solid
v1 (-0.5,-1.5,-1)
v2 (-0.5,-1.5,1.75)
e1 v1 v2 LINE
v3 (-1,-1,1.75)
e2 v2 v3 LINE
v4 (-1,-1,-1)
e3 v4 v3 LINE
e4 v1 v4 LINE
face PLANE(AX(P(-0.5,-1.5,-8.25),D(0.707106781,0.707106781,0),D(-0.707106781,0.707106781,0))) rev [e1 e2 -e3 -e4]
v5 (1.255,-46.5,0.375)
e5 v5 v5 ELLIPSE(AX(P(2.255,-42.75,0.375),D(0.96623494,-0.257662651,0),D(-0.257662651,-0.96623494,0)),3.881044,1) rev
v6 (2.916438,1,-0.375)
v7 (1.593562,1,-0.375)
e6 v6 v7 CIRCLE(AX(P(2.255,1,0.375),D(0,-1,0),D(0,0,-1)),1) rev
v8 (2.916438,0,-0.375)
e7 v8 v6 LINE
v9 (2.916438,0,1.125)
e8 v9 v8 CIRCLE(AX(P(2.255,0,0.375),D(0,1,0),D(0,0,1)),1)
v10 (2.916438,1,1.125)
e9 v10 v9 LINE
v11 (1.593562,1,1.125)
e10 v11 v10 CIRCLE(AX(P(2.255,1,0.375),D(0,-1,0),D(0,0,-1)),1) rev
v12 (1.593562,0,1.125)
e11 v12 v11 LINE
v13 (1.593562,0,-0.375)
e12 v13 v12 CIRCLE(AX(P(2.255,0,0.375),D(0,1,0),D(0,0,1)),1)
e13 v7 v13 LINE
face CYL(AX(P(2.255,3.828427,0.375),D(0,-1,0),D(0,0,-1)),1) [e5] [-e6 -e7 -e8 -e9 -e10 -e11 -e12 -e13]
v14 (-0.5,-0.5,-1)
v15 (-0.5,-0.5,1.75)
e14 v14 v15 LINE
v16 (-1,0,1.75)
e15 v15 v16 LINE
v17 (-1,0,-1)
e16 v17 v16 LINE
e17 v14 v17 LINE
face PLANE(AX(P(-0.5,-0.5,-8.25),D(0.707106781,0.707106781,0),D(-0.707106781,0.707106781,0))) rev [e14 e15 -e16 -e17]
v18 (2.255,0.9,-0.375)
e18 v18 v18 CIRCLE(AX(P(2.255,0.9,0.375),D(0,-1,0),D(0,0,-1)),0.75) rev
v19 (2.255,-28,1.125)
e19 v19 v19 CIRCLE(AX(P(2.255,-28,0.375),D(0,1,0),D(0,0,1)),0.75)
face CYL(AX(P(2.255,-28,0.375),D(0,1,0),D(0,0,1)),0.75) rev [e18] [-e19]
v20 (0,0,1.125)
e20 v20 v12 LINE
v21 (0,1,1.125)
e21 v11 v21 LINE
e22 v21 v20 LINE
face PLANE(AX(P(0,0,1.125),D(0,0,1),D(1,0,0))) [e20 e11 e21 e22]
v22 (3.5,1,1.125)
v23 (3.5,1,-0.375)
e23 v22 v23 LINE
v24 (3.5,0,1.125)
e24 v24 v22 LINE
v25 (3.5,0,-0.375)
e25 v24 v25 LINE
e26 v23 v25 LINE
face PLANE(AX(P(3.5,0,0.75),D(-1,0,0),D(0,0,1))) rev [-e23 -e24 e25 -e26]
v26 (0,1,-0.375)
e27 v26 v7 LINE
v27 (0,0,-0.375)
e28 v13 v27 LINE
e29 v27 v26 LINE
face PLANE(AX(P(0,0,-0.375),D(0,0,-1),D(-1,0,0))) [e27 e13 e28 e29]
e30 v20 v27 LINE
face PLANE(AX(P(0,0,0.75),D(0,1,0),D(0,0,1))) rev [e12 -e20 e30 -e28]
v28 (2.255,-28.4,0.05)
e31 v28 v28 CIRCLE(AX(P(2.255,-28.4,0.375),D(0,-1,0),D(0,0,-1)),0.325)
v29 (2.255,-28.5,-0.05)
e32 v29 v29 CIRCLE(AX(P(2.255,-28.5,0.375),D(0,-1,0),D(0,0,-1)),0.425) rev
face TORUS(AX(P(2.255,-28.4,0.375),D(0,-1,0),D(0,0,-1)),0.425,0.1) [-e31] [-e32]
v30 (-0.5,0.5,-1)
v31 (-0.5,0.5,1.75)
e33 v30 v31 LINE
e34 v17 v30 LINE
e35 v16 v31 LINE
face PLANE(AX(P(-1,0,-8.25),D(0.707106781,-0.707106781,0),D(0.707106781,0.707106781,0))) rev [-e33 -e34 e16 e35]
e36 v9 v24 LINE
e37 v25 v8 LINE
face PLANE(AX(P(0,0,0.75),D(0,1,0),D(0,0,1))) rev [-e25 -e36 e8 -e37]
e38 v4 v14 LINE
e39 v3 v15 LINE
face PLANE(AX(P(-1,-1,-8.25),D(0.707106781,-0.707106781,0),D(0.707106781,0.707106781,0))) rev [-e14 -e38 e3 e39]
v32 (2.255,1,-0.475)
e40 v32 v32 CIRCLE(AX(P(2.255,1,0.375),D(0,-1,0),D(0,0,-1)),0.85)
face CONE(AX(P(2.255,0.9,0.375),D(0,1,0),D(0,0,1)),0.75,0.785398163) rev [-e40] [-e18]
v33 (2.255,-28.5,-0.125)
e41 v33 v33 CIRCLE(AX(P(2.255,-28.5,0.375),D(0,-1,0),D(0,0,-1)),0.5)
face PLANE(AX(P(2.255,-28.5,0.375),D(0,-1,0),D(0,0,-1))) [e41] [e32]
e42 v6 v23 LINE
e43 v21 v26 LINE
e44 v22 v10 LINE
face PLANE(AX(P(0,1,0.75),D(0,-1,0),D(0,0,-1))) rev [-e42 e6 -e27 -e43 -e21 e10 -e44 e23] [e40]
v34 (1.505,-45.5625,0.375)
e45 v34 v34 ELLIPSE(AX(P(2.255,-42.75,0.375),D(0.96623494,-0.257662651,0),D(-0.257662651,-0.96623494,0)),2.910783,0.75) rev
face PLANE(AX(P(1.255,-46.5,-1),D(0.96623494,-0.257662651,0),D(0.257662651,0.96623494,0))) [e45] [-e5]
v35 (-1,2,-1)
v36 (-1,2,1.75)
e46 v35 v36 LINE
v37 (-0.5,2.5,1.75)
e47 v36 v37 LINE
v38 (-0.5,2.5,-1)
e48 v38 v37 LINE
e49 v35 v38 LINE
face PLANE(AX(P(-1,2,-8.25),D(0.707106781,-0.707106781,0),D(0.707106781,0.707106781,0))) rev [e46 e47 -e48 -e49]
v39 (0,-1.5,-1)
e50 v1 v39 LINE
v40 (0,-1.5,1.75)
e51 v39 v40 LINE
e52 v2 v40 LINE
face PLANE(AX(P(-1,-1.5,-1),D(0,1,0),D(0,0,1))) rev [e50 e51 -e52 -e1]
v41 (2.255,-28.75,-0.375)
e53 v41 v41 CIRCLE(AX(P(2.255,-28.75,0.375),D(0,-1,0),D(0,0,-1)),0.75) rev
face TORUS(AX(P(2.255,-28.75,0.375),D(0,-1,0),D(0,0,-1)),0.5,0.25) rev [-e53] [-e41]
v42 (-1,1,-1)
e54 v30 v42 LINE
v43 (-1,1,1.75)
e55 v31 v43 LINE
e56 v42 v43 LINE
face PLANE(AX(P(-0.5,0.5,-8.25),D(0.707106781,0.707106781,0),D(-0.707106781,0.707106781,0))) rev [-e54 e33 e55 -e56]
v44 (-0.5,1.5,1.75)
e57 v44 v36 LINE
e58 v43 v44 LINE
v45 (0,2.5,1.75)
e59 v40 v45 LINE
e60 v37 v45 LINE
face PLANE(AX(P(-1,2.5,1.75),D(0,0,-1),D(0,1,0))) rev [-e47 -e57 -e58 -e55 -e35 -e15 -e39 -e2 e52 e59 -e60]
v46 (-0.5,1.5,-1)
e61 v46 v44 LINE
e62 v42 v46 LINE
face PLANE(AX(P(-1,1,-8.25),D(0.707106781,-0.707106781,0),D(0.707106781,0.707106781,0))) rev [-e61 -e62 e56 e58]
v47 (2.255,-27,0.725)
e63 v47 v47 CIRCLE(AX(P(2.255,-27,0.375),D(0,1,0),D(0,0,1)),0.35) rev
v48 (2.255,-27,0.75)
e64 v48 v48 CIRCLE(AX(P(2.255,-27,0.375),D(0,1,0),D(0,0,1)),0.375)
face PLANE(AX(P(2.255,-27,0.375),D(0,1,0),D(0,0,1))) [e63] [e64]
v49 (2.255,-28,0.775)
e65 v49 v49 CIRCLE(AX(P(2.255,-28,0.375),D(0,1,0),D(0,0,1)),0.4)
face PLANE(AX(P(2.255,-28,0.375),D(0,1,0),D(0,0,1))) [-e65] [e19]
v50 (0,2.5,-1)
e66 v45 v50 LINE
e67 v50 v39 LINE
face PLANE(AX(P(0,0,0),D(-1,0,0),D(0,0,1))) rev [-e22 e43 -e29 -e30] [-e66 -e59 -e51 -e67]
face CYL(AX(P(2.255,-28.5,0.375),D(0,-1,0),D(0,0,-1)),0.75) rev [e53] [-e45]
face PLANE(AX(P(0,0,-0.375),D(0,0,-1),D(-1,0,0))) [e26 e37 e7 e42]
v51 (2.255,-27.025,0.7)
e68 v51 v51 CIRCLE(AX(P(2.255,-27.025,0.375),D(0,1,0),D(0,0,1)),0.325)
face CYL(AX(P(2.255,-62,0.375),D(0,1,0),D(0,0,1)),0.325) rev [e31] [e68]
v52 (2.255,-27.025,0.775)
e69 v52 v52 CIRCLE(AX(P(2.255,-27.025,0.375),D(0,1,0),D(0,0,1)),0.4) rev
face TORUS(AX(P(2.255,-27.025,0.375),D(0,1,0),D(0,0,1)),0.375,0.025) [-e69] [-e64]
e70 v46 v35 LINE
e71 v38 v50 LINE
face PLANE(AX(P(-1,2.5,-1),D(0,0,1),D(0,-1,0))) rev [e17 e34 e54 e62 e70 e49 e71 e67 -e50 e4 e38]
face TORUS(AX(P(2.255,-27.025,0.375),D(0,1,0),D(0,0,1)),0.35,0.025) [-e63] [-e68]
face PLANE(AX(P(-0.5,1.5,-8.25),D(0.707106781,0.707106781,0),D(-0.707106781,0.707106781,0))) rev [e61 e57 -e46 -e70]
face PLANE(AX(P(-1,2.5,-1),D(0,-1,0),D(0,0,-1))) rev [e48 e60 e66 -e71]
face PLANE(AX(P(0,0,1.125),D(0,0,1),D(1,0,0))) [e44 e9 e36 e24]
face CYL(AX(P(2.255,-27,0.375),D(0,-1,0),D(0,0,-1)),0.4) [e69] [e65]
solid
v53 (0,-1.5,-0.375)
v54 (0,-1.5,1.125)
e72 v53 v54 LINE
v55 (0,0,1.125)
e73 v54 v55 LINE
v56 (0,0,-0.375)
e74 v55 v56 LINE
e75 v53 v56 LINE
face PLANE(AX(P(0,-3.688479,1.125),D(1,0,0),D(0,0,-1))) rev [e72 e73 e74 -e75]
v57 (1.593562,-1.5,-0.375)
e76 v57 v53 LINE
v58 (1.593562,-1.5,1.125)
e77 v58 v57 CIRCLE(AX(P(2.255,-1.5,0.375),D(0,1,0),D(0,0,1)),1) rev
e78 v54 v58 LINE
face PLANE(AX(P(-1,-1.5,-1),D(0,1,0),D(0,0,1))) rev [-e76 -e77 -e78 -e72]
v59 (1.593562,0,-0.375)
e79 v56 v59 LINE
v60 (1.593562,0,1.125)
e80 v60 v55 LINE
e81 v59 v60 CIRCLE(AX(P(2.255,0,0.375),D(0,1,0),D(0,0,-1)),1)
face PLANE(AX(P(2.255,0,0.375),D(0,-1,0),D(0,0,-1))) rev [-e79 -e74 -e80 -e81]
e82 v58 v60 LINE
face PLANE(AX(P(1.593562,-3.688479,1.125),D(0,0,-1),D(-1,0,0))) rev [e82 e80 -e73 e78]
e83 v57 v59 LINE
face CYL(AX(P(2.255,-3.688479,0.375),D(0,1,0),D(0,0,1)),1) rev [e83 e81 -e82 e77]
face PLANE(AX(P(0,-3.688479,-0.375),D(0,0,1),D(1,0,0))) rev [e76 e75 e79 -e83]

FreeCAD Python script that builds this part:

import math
import FreeCAD as App
import Part
import Sketcher

V = App.Vector


def edges_at(feature, points):
    """Names of the edges that pass closest to the given points."""
    edges = feature.Shape.Edges
    near = lambda p: min(range(len(edges)), key=lambda i: edges[i].distToShape(Part.Vertex(*p))[0])
    return sorted({f"Edge{near(p) + 1}" for p in points})

doc = App.newDocument("Part")
body = doc.addObject("PartDesign::Body", "Body")

# Sketch on XY plane
sketch1 = body.newObject("Sketcher::SketchObject", "Sketch")
sketch1.AttachmentSupport = (doc.getObject("XY_Plane"), [""])
sketch1.MapMode = "FlatFace"
sketch1.addGeometry(Part.LineSegment(V(0, 1, 0), V(0, 0, 0)), False)
sketch1.addGeometry(Part.LineSegment(V(0, 0, 0), V(3.5, 0, 0)), False)
sketch1.addGeometry(Part.LineSegment(V(3.5, 0, 0), V(3.5, 1, 0)), False)
sketch1.addGeometry(Part.LineSegment(V(3.5, 1, 0), V(0, 1, 0)), False)
sketch1.addConstraint(Sketcher.Constraint("Coincident", 0, 2, 1, 1))
sketch1.addConstraint(Sketcher.Constraint("Coincident", 1, 2, 2, 1))
sketch1.addConstraint(Sketcher.Constraint("Coincident", 2, 2, 3, 1))
sketch1.addConstraint(Sketcher.Constraint("Coincident", 3, 2, 0, 1))
sketch1.addConstraint(Sketcher.Constraint("Vertical", 0))
sketch1.addConstraint(Sketcher.Constraint("Horizontal", 1))
sketch1.addConstraint(Sketcher.Constraint("Vertical", 2))
sketch1.addConstraint(Sketcher.Constraint("Horizontal", 3))
sketch1.addConstraint(Sketcher.Constraint("Coincident", 0, 2, -1, 1))
sketch1.addConstraint(Sketcher.Constraint("DistanceY", 0, 2, 0, 1, 1.0))
sketch1.addConstraint(Sketcher.Constraint("DistanceX", 1, 1, 1, 2, 3.5))
pad1 = body.newObject("PartDesign::Pad", "Pad")
pad1.Profile = sketch1
pad1.Length = 0.75

# Sketch on XZ plane
sketch2 = body.newObject("Sketcher::SketchObject", "Sketch001")
sketch2.AttachmentSupport = (doc.getObject("XZ_Plane"), [""])
sketch2.MapMode = "FlatFace"
sketch2.addGeometry(Part.Circle(V(2.255, 0.375, 0), V(0, 0, 1), 1), False)
sketch2.addConstraint(Sketcher.Constraint("Diameter", 0, 2.0))
sketch2.addConstraint(Sketcher.Constraint("DistanceX", -1, 1, 0, 3, 2.255))
sketch2.addConstraint(Sketcher.Constraint("DistanceY", -1, 1, 0, 3, 0.375))
pad2 = body.newObject("PartDesign::Pad", "Pad001")
pad2.Profile = sketch2
pad2.Type = "TwoLengths"
pad2.Length = 46.5
pad2.Length2 = 1

# Sketch on XZ plane
sketch3 = body.newObject("Sketcher::SketchObject", "Sketch002")
sketch3.AttachmentSupport = (doc.getObject("XZ_Plane"), [""])
sketch3.MapMode = "FlatFace"
sketch3.AttachmentOffset = App.Placement(V(0, 0, 46.5), App.Rotation())
sketch3.addGeometry(Part.Circle(V(2.255, 0.375, 0), V(0, 0, 1), 0.75), False)
sketch3.addConstraint(Sketcher.Constraint("Diameter", 0, 1.5))
sketch3.addConstraint(Sketcher.Constraint("DistanceX", -1, 1, 0, 3, 2.255))
sketch3.addConstraint(Sketcher.Constraint("DistanceY", -1, 1, 0, 3, 0.375))
pocket1 = body.newObject("PartDesign::Pocket", "Pocket")
pocket1.Profile = sketch3
pocket1.Length = 18

# Sketch on YZ plane
sketch4 = body.newObject("Sketcher::SketchObject", "Sketch003")
sketch4.AttachmentSupport = (doc.getObject("YZ_Plane"), [""])
sketch4.MapMode = "FlatFace"
sketch4.addGeometry(Part.LineSegment(V(2.5, -1, 0), V(-1.5, -1, 0)), False)
sketch4.addGeometry(Part.LineSegment(V(-1.5, -1, 0), V(-1.5, 1.75, 0)), False)
sketch4.addGeometry(Part.LineSegment(V(-1.5, 1.75, 0), V(2.5, 1.75, 0)), False)
sketch4.addGeometry(Part.LineSegment(V(2.5, 1.75, 0), V(2.5, -1, 0)), False)
sketch4.addConstraint(Sketcher.Constraint("Coincident", 0, 2, 1, 1))
sketch4.addConstraint(Sketcher.Constraint("Coincident", 1, 2, 2, 1))
sketch4.addConstraint(Sketcher.Constraint("Coincident", 2, 2, 3, 1))
sketch4.addConstraint(Sketcher.Constraint("Coincident", 3, 2, 0, 1))
sketch4.addConstraint(Sketcher.Constraint("Horizontal", 0))
sketch4.addConstraint(Sketcher.Constraint("Vertical", 1))
sketch4.addConstraint(Sketcher.Constraint("Horizontal", 2))
sketch4.addConstraint(Sketcher.Constraint("Vertical", 3))
sketch4.addConstraint(Sketcher.Constraint("DistanceX", 0, 2, 0, 1, 4.0))
sketch4.addConstraint(Sketcher.Constraint("DistanceY", 0, 2, -1, 1, 1.0))
sketch4.addConstraint(Sketcher.Constraint("DistanceY", 1, 1, 1, 2, 2.75))
sketch4.addConstraint(Sketcher.Constraint("DistanceX", 0, 2, -1, 1, 1.5))
pad3 = body.newObject("PartDesign::Pad", "Pad002")
pad3.Profile = sketch4
pad3.Length = 1
pad3.Reversed = True

# Sketch on XY plane
sketch5 = body.newObject("Sketcher::SketchObject", "Sketch004")
sketch5.AttachmentSupport = (doc.getObject("XY_Plane"), [""])
sketch5.MapMode = "FlatFace"
sketch5.AttachmentOffset = App.Placement(V(0, 0, 1.75), App.Rotation())
sketch5.addGeometry(Part.LineSegment(V(-0.5, 2.5, 0), V(-1.357588, 2.5, 0)), False)
sketch5.addGeometry(Part.LineSegment(V(-1.357588, 2.5, 0), V(-1.357588, -1.5, 0)), False)
sketch5.addGeometry(Part.LineSegment(V(-1.357588, -1.5, 0), V(-0.5, -1.5, 0)), False)
sketch5.addGeometry(Part.LineSegment(V(-0.5, -1.5, 0), V(-1, -1, 0)), False)
sketch5.addGeometry(Part.LineSegment(V(-1, -1, 0), V(-0.5, -0.5, 0)), False)
sketch5.addGeometry(Part.LineSegment(V(-0.5, -0.5, 0), V(-1, 0, 0)), False)
sketch5.addGeometry(Part.LineSegment(V(-1, 0, 0), V(-0.5, 0.5, 0)), False)
sketch5.addGeometry(Part.LineSegment(V(-0.5, 0.5, 0), V(-1, 1, 0)), False)
sketch5.addGeometry(Part.LineSegment(V(-1, 1, 0), V(-0.5, 1.5, 0)), False)
sketch5.addGeometry(Part.LineSegment(V(-0.5, 1.5, 0), V(-1, 2, 0)), False)
sketch5.addGeometry(Part.LineSegment(V(-1, 2, 0), V(-0.5, 2.5, 0)), False)
sketch5.addConstraint(Sketcher.Constraint("Coincident", 0, 2, 1, 1))
sketch5.addConstraint(Sketcher.Constraint("Coincident", 1, 2, 2, 1))
sketch5.addConstraint(Sketcher.Constraint("Coincident", 2, 2, 3, 1))
sketch5.addConstraint(Sketcher.Constraint("Coincident", 3, 2, 4, 1))
sketch5.addConstraint(Sketcher.Constraint("Coincident", 4, 2, 5, 1))
sketch5.addConstraint(Sketcher.Constraint("Coincident", 5, 2, 6, 1))
sketch5.addConstraint(Sketcher.Constraint("Coincident", 6, 2, 7, 1))
sketch5.addConstraint(Sketcher.Constraint("Coincident", 7, 2, 8, 1))
sketch5.addConstraint(Sketcher.Constraint("Coincident", 8, 2, 9, 1))
sketch5.addConstraint(Sketcher.Constraint("Coincident", 9, 2, 10, 1))
sketch5.addConstraint(Sketcher.Constraint("Coincident", 10, 2, 0, 1))
sketch5.addConstraint(Sketcher.Constraint("Horizontal", 0))
sketch5.addConstraint(Sketcher.Constraint("Vertical", 1))
sketch5.addConstraint(Sketcher.Constraint("Horizontal", 2))
sketch5.addConstraint(Sketcher.Constraint("Symmetric", 4, 2, 6, 2, -1))
sketch5.addConstraint(Sketcher.Constraint("Symmetric", 3, 2, 7, 2, -1))
sketch5.addConstraint(Sketcher.Constraint("Symmetric", 2, 2, 8, 2, -1))
sketch5.addConstraint(Sketcher.Constraint("PointOnObject", 5, 2, -1))
sketch5.addConstraint(Sketcher.Constraint("Perpendicular", 3, 4))
sketch5.addConstraint(Sketcher.Constraint("Perpendicular", 4, 5))
sketch5.addConstraint(Sketcher.Constraint("Perpendicular", 5, 6))
sketch5.addConstraint(Sketcher.Constraint("Perpendicular", 8, 9))
sketch5.addConstraint(Sketcher.Constraint("Perpendicular", 9, 10))
sketch5.addConstraint(Sketcher.Constraint("Vertical", 2, 2, 4, 2))
sketch5.addConstraint(Sketcher.Constraint("Vertical", 3, 2, 5, 2))
sketch5.addConstraint(Sketcher.Constraint("Vertical", 7, 2, 9, 2))
sketch5.addConstraint(Sketcher.Constraint("Vertical", 8, 2, 10, 2))
sketch5.addConstraint(Sketcher.Constraint("DistanceY", 1, 2, 1, 1, 4.0))
sketch5.addConstraint(Sketcher.Constraint("DistanceX", 3, 2, -1, 1, 1.0))
sketch5.addConstraint(Sketcher.Constraint("DistanceX", 0, 2, 0, 1, 0.857588))
pocket2 = body.newObject("PartDesign::Pocket", "Pocket001")
pocket2.Profile = sketch5
pocket2.Length = 10

# Sketch on XY plane
sketch6 = body.newObject("Sketcher::SketchObject", "Sketch005")
sketch6.AttachmentSupport = (doc.getObject("XY_Plane"), [""])
sketch6.MapMode = "FlatFace"
sketch6.addGeometry(Part.LineSegment(V(3.255, -39, 0), V(1.255, -46.5, 0)), False)
sketch6.addGeometry(Part.LineSegment(V(1.255, -46.5, 0), V(3.255, -46.5, 0)), False)
sketch6.addGeometry(Part.LineSegment(V(3.255, -46.5, 0), V(3.255, -39, 0)), False)
sketch6.addConstraint(Sketcher.Constraint("Coincident", 0, 2, 1, 1))
sketch6.addConstraint(Sketcher.Constraint("Coincident", 1, 2, 2, 1))
sketch6.addConstraint(Sketcher.Constraint("Coincident", 2, 2, 0, 1))
sketch6.addConstraint(Sketcher.Constraint("Horizontal", 1))
sketch6.addConstraint(Sketcher.Constraint("Vertical", 2))
sketch6.addConstraint(Sketcher.Constraint("DistanceX", 1, 1, 1, 2, 2.0))
sketch6.addConstraint(Sketcher.Constraint("DistanceY", 2, 1, 2, 2, 7.5))
sketch6.addConstraint(Sketcher.Constraint("DistanceY", 2, 2, -1, 1, 39.0))
sketch6.addConstraint(Sketcher.Constraint("DistanceX", -1, 1, 0, 2, 1.255))
pocket3 = body.newObject("PartDesign::Pocket", "Pocket002")
pocket3.Profile = sketch6
pocket3.Type = "ThroughAll"
pocket3.Midplane = True

# Sketch on XZ plane
sketch7 = body.newObject("Sketcher::SketchObject", "Sketch006")
sketch7.AttachmentSupport = (doc.getObject("XZ_Plane"), [""])
sketch7.MapMode = "FlatFace"
sketch7.AttachmentOffset = App.Placement(V(0, 0, -1), App.Rotation())
sketch7.addGeometry(Part.Circle(V(2.255, 0.375, 0), V(0, 0, 1), 0.75), False)
sketch7.addConstraint(Sketcher.Constraint("Diameter", 0, 1.5))
sketch7.addConstraint(Sketcher.Constraint("DistanceX", -1, 1, 0, 3, 2.255))
sketch7.addConstraint(Sketcher.Constraint("DistanceY", -1, 1, 0, 3, 0.375))
pocket4 = body.newObject("PartDesign::Pocket", "Pocket003")
pocket4.Profile = sketch7
pocket4.Length = 29
pocket4.Reversed = True

# Sketch on XZ plane
sketch8 = body.newObject("Sketcher::SketchObject", "Sketch007")
sketch8.AttachmentSupport = (doc.getObject("XZ_Plane"), [""])
sketch8.MapMode = "FlatFace"
sketch8.AttachmentOffset = App.Placement(V(0, 0, 28), App.Rotation())
sketch8.addGeometry(Part.Circle(V(2.255, 0.375, 0), V(0, 0, 1), 0.4), False)
sketch8.addConstraint(Sketcher.Constraint("Diameter", 0, 0.8))
sketch8.addConstraint(Sketcher.Constraint("DistanceX", -1, 1, 0, 3, 2.255))
sketch8.addConstraint(Sketcher.Constraint("DistanceY", -1, 1, 0, 3, 0.375))
pad4 = body.newObject("PartDesign::Pad", "Pad003")
pad4.Profile = sketch8
pad4.Length = 1
pad4.Reversed = True

# Sketch on XZ plane
sketch9 = body.newObject("Sketcher::SketchObject", "Sketch008")
sketch9.AttachmentSupport = (doc.getObject("XZ_Plane"), [""])
sketch9.MapMode = "FlatFace"
sketch9.AttachmentOffset = App.Placement(V(0, 0, 27), App.Rotation())
sketch9.addGeometry(Part.Circle(V(2.255, 0.375, 0), V(0, 0, 1), 0.325), False)
sketch9.addConstraint(Sketcher.Constraint("Diameter", 0, 0.65))
sketch9.addConstraint(Sketcher.Constraint("DistanceX", -1, 1, 0, 3, 2.255))
sketch9.addConstraint(Sketcher.Constraint("DistanceY", -1, 1, 0, 3, 0.375))
pocket5 = body.newObject("PartDesign::Pocket", "Pocket004")
pocket5.Profile = sketch9
pocket5.Length = 35
pocket5.Reversed = True
doc.recompute()

fillet = body.newObject("PartDesign::Fillet", "Fillet")
fillet.Base = (pocket5, edges_at(pocket5, [(1.93, -27, 0.375)]))
fillet.Radius = 0.025
doc.recompute()

fillet2 = body.newObject("PartDesign::Fillet", "Fillet001")
fillet2.Base = (fillet, edges_at(fillet, [(1.855, -27, 0.375)]))
fillet2.Radius = 0.025
doc.recompute()

fillet3 = body.newObject("PartDesign::Fillet", "Fillet002")
fillet3.Base = (fillet2, edges_at(fillet2, [(1.505, -28.5, 0.375)]))
fillet3.Radius = 0.25
doc.recompute()

fillet4 = body.newObject("PartDesign::Fillet", "Fillet003")
fillet4.Base = (fillet3, edges_at(fillet3, [(1.93, -28.5, 0.375)]))
fillet4.Radius = 0.1

# Sketch on XY plane
sketch10 = body.newObject("Sketcher::SketchObject", "Sketch009")
sketch10.AttachmentSupport = (doc.getObject("XY_Plane"), [""])
sketch10.MapMode = "FlatFace"
sketch10.addGeometry(Part.LineSegment(V(3.5, 1, 0), V(3.5, 0, 0)), False)
sketch10.addGeometry(Part.LineSegment(V(3.5, 0, 0), V(3.182025, 0, 0)), False)
sketch10.addGeometry(Part.LineSegment(V(3.182025, 0, 0), V(3.182025, 1, 0)), False)
sketch10.addGeometry(Part.LineSegment(V(3.182025, 1, 0), V(3.5, 1, 0)), False)
sketch10.addConstraint(Sketcher.Constraint("Coincident", 0, 2, 1, 1))
sketch10.addConstraint(Sketcher.Constraint("Coincident", 1, 2, 2, 1))
sketch10.addConstraint(Sketcher.Constraint("Coincident", 2, 2, 3, 1))
sketch10.addConstraint(Sketcher.Constraint("Coincident", 3, 2, 0, 1))
sketch10.addConstraint(Sketcher.Constraint("Vertical", 0))
sketch10.addConstraint(Sketcher.Constraint("Horizontal", 1))
sketch10.addConstraint(Sketcher.Constraint("Vertical", 2))
sketch10.addConstraint(Sketcher.Constraint("Horizontal", 3))
sketch10.addConstraint(Sketcher.Constraint("PointOnObject", 0, 2, -1))
sketch10.addConstraint(Sketcher.Constraint("DistanceY", 0, 2, 0, 1, 1.0))
sketch10.addConstraint(Sketcher.Constraint("DistanceX", -1, 1, 0, 2, 3.5))
sketch10.addConstraint(Sketcher.Constraint("DistanceX", 1, 2, 1, 1, 0.317975))
pad5 = body.newObject("PartDesign::Pad", "Pad004")
pad5.Profile = sketch10
pad5.Length = 0.375
pad5.Reversed = True

# Sketch on XY plane
sketch11 = body.newObject("Sketcher::SketchObject", "Sketch010")
sketch11.AttachmentSupport = (doc.getObject("XY_Plane"), [""])
sketch11.MapMode = "FlatFace"
sketch11.AttachmentOffset = App.Placement(V(0, 0, 0.75), App.Rotation())
sketch11.addGeometry(Part.LineSegment(V(3.182025, 1, 0), V(3.182025, 0, 0)), False)
sketch11.addGeometry(Part.LineSegment(V(3.182025, 0, 0), V(3.5, 0, 0)), False)
sketch11.addGeometry(Part.LineSegment(V(3.5, 0, 0), V(3.5, 1, 0)), False)
sketch11.addGeometry(Part.LineSegment(V(3.5, 1, 0), V(3.182025, 1, 0)), False)
sketch11.addConstraint(Sketcher.Constraint("Coincident", 0, 2, 1, 1))
sketch11.addConstraint(Sketcher.Constraint("Coincident", 1, 2, 2, 1))
sketch11.addConstraint(Sketcher.Constraint("Coincident", 2, 2, 3, 1))
sketch11.addConstraint(Sketcher.Constraint("Coincident", 3, 2, 0, 1))
sketch11.addConstraint(Sketcher.Constraint("Vertical", 0))
sketch11.addConstraint(Sketcher.Constraint("Horizontal", 1))
sketch11.addConstraint(Sketcher.Constraint("Vertical", 2))
sketch11.addConstraint(Sketcher.Constraint("Horizontal", 3))
sketch11.addConstraint(Sketcher.Constraint("PointOnObject", 0, 2, -1))
sketch11.addConstraint(Sketcher.Constraint("DistanceY", 0, 2, 0, 1, 1.0))
sketch11.addConstraint(Sketcher.Constraint("DistanceX", -1, 1, 1, 2, 3.5))
sketch11.addConstraint(Sketcher.Constraint("DistanceX", 1, 1, 1, 2, 0.317975))
pad6 = body.newObject("PartDesign::Pad", "Pad005")
pad6.Profile = sketch11
pad6.Length = 0.375

# Sketch on YZ plane
sketch12 = body.newObject("Sketcher::SketchObject", "Sketch011")
sketch12.AttachmentSupport = (doc.getObject("YZ_Plane"), [""])
sketch12.MapMode = "FlatFace"
sketch12.AttachmentOffset = App.Placement(V(0, 0, 3.182025), App.Rotation())
sketch12.addGeometry(Part.LineSegment(V(1, -0.375, 0), V(0, -0.375, 0)), False)
sketch12.addGeometry(Part.LineSegment(V(0, -0.375, 0), V(0, 0, 0)), False)
sketch12.addGeometry(Part.LineSegment(V(0, 0, 0), V(1, 0, 0)), False)
sketch12.addGeometry(Part.LineSegment(V(1, 0, 0), V(1, -0.375, 0)), False)
sketch12.addConstraint(Sketcher.Constraint("Coincident", 0, 2, 1, 1))
sketch12.addConstraint(Sketcher.Constraint("Coincident", 1, 2, 2, 1))
sketch12.addConstraint(Sketcher.Constraint("Coincident", 2, 2, 3, 1))
sketch12.addConstraint(Sketcher.Constraint("Coincident", 3, 2, 0, 1))
sketch12.addConstraint(Sketcher.Constraint("Horizontal", 0))
sketch12.addConstraint(Sketcher.Constraint("Vertical", 1))
sketch12.addConstraint(Sketcher.Constraint("Horizontal", 2))
sketch12.addConstraint(Sketcher.Constraint("Vertical", 3))
sketch12.addConstraint(Sketcher.Constraint("Coincident", 1, 2, -1, 1))
sketch12.addConstraint(Sketcher.Constraint("DistanceX", 0, 2, 0, 1, 1.0))
sketch12.addConstraint(Sketcher.Constraint("DistanceY", 1, 1, 1, 2, 0.375))
pad7 = body.newObject("PartDesign::Pad", "Pad006")
pad7.Profile = sketch12
pad7.Length = 0.265587
pad7.Reversed = True

# Sketch on YZ plane
sketch13 = body.newObject("Sketcher::SketchObject", "Sketch012")
sketch13.AttachmentSupport = (doc.getObject("YZ_Plane"), [""])
sketch13.MapMode = "FlatFace"
sketch13.AttachmentOffset = App.Placement(V(0, 0, 3.182025), App.Rotation())
sketch13.addGeometry(Part.LineSegment(V(1, 0.75, 0), V(0, 0.75, 0)), False)
sketch13.addGeometry(Part.LineSegment(V(0, 0.75, 0), V(0, 1.125, 0)), False)
sketch13.addGeometry(Part.LineSegment(V(0, 1.125, 0), V(1, 1.125, 0)), False)
sketch13.addGeometry(Part.LineSegment(V(1, 1.125, 0), V(1, 0.75, 0)), False)
sketch13.addConstraint(Sketcher.Constraint("Coincident", 0, 2, 1, 1))
sketch13.addConstraint(Sketcher.Constraint("Coincident", 1, 2, 2, 1))
sketch13.addConstraint(Sketcher.Constraint("Coincident", 2, 2, 3, 1))
sketch13.addConstraint(Sketcher.Constraint("Coincident", 3, 2, 0, 1))
sketch13.addConstraint(Sketcher.Constraint("Horizontal", 0))
sketch13.addConstraint(Sketcher.Constraint("Vertical", 1))
sketch13.addConstraint(Sketcher.Constraint("Horizontal", 2))
sketch13.addConstraint(Sketcher.Constraint("Vertical", 3))
sketch13.addConstraint(Sketcher.Constraint("PointOnObject", 0, 2, -2))
sketch13.addConstraint(Sketcher.Constraint("DistanceX", 0, 2, 0, 1, 1.0))
sketch13.addConstraint(Sketcher.Constraint("DistanceY", 1, 1, 1, 2, 0.375))
sketch13.addConstraint(Sketcher.Constraint("DistanceY", -1, 1, 0, 2, 0.75))
pad8 = body.newObject("PartDesign::Pad", "Pad007")
pad8.Profile = sketch13
pad8.Length = 0.265587
pad8.Reversed = True

# Sketch on XY plane
sketch14 = body.newObject("Sketcher::SketchObject", "Sketch013")
sketch14.AttachmentSupport = (doc.getObject("XY_Plane"), [""])
sketch14.MapMode = "FlatFace"
sketch14.AttachmentOffset = App.Placement(V(0, 0, 0.75), App.Rotation())
sketch14.addGeometry(Part.LineSegment(V(0, 1, 0), V(0, 0, 0)), False)
sketch14.addGeometry(Part.LineSegment(V(0, 0, 0), V(1.327975, 0, 0)), False)
sketch14.addGeometry(Part.LineSegment(V(1.327975, 0, 0), V(1.327975, 1, 0)), False)
sketch14.addGeometry(Part.LineSegment(V(1.327975, 1, 0), V(0, 1, 0)), False)
sketch14.addConstraint(Sketcher.Constraint("Coincident", 0, 2, 1, 1))
sketch14.addConstraint(Sketcher.Constraint("Coincident", 1, 2, 2, 1))
sketch14.addConstraint(Sketcher.Constraint("Coincident", 2, 2, 3, 1))
sketch14.addConstraint(Sketcher.Constraint("Coincident", 3, 2, 0, 1))
sketch14.addConstraint(Sketcher.Constraint("Vertical", 0))
sketch14.addConstraint(Sketcher.Constraint("Horizontal", 1))
sketch14.addConstraint(Sketcher.Constraint("Vertical", 2))
sketch14.addConstraint(Sketcher.Constraint("Horizontal", 3))
sketch14.addConstraint(Sketcher.Constraint("Coincident", 0, 2, -1, 1))
sketch14.addConstraint(Sketcher.Constraint("DistanceY", 0, 2, 0, 1, 1.0))
sketch14.addConstraint(Sketcher.Constraint("DistanceX", 1, 1, 1, 2, 1.327975))
pad9 = body.newObject("PartDesign::Pad", "Pad008")
pad9.Profile = sketch14
pad9.Length = 0.375

# Sketch on YZ plane
sketch15 = body.newObject("Sketcher::SketchObject", "Sketch014")
sketch15.AttachmentSupport = (doc.getObject("YZ_Plane"), [""])
sketch15.MapMode = "FlatFace"
sketch15.AttachmentOffset = App.Placement(V(0, 0, 1.327975), App.Rotation())
sketch15.addGeometry(Part.LineSegment(V(1, 1.125, 0), V(0, 1.125, 0)), False)
sketch15.addGeometry(Part.LineSegment(V(0, 1.125, 0), V(0, 0.75, 0)), False)
sketch15.addGeometry(Part.LineSegment(V(0, 0.75, 0), V(1, 0.75, 0)), False)
sketch15.addGeometry(Part.LineSegment(V(1, 0.75, 0), V(1, 1.125, 0)), False)
sketch15.addConstraint(Sketcher.Constraint("Coincident", 0, 2, 1, 1))
sketch15.addConstraint(Sketcher.Constraint("Coincident", 1, 2, 2, 1))
sketch15.addConstraint(Sketcher.Constraint("Coincident", 2, 2, 3, 1))
sketch15.addConstraint(Sketcher.Constraint("Coincident", 3, 2, 0, 1))
sketch15.addConstraint(Sketcher.Constraint("Horizontal", 0))
sketch15.addConstraint(Sketcher.Constraint("Vertical", 1))
sketch15.addConstraint(Sketcher.Constraint("Horizontal", 2))
sketch15.addConstraint(Sketcher.Constraint("Vertical", 3))
sketch15.addConstraint(Sketcher.Constraint("PointOnObject", 0, 2, -2))
sketch15.addConstraint(Sketcher.Constraint("DistanceX", 0, 2, 0, 1, 1.0))
sketch15.addConstraint(Sketcher.Constraint("DistanceY", 1, 2, 1, 1, 0.375))
sketch15.addConstraint(Sketcher.Constraint("DistanceY", -1, 1, 1, 2, 0.75))
pad10 = body.newObject("PartDesign::Pad", "Pad009")
pad10.Profile = sketch15
pad10.Length = 0.265587

# Sketch on XY plane
sketch16 = body.newObject("Sketcher::SketchObject", "Sketch015")
sketch16.AttachmentSupport = (doc.getObject("XY_Plane"), [""])
sketch16.MapMode = "FlatFace"
sketch16.addGeometry(Part.LineSegment(V(1.327975, 1, 0), V(1.327975, 0, 0)), False)
sketch16.addGeometry(Part.LineSegment(V(1.327975, 0, 0), V(0, 0, 0)), False)
sketch16.addGeometry(Part.LineSegment(V(0, 0, 0), V(0, 1, 0)), False)
sketch16.addGeometry(Part.LineSegment(V(0, 1, 0), V(1.327975, 1, 0)), False)
sketch16.addConstraint(Sketcher.Constraint("Coincident", 0, 2, 1, 1))
sketch16.addConstraint(Sketcher.Constraint("Coincident", 1, 2, 2, 1))
sketch16.addConstraint(Sketcher.Constraint("Coincident", 2, 2, 3, 1))
sketch16.addConstraint(Sketcher.Constraint("Coincident", 3, 2, 0, 1))
sketch16.addConstraint(Sketcher.Constraint("Vertical", 0))
sketch16.addConstraint(Sketcher.Constraint("Horizontal", 1))
sketch16.addConstraint(Sketcher.Constraint("Vertical", 2))
sketch16.addConstraint(Sketcher.Constraint("Horizontal", 3))
sketch16.addConstraint(Sketcher.Constraint("Coincident", 1, 2, -1, 1))
sketch16.addConstraint(Sketcher.Constraint("DistanceY", 0, 2, 0, 1, 1.0))
sketch16.addConstraint(Sketcher.Constraint("DistanceX", 1, 2, 1, 1, 1.327975))
pad11 = body.newObject("PartDesign::Pad", "Pad010")
pad11.Profile = sketch16
pad11.Length = 0.375
pad11.Reversed = True

# Sketch on YZ plane
sketch17 = body.newObject("Sketcher::SketchObject", "Sketch016")
sketch17.AttachmentSupport = (doc.getObject("YZ_Plane"), [""])
sketch17.MapMode = "FlatFace"
sketch17.AttachmentOffset = App.Placement(V(0, 0, 1.327975), App.Rotation())
sketch17.addGeometry(Part.LineSegment(V(1, 0, 0), V(0, 0, 0)), False)
sketch17.addGeometry(Part.LineSegment(V(0, 0, 0), V(0, -0.375, 0)), False)
sketch17.addGeometry(Part.LineSegment(V(0, -0.375, 0), V(1, -0.375, 0)), False)
sketch17.addGeometry(Part.LineSegment(V(1, -0.375, 0), V(1, 0, 0)), False)
sketch17.addConstraint(Sketcher.Constraint("Coincident", 0, 2, 1, 1))
sketch17.addConstraint(Sketcher.Constraint("Coincident", 1, 2, 2, 1))
sketch17.addConstraint(Sketcher.Constraint("Coincident", 2, 2, 3, 1))
sketch17.addConstraint(Sketcher.Constraint("Coincident", 3, 2, 0, 1))
sketch17.addConstraint(Sketcher.Constraint("Horizontal", 0))
sketch17.addConstraint(Sketcher.Constraint("Vertical", 1))
sketch17.addConstraint(Sketcher.Constraint("Horizontal", 2))
sketch17.addConstraint(Sketcher.Constraint("Vertical", 3))
sketch17.addConstraint(Sketcher.Constraint("Coincident", 0, 2, -1, 1))
sketch17.addConstraint(Sketcher.Constraint("DistanceX", 0, 2, 0, 1, 1.0))
sketch17.addConstraint(Sketcher.Constraint("DistanceY", 1, 2, 1, 1, 0.375))
pad12 = body.newObject("PartDesign::Pad", "Pad011")
pad12.Profile = sketch17
pad12.Length = 0.265587
doc.recompute()

chamfer = body.newObject("PartDesign::Chamfer", "Chamfer")
chamfer.Base = (pad12, edges_at(pad12, [(1.505, 1, 0.375)]))
chamfer.Size = 0.1
body2 = doc.addObject("PartDesign::Body", "Body001")

# Sketch on XZ plane
sketch18 = body2.newObject("Sketcher::SketchObject", "Sketch017")
sketch18.AttachmentSupport = (doc.getObject("XZ_Plane001"), [""])
sketch18.MapMode = "FlatFace"
sketch18.addGeometry(Part.LineSegment(V(0, 1.125, 0), V(0, -0.375, 0)), False)
sketch18.addGeometry(Part.LineSegment(V(0, -0.375, 0), V(1.593562, -0.375, 0)), False)
sketch18.addGeometry(Part.ArcOfCircle(Part.Circle(V(2.255, 0.375, 0), V(0, 0, 1), 1), math.radians(131.409622), math.radians(228.590378)), False)
sketch18.addGeometry(Part.LineSegment(V(1.593562, 1.125, 0), V(0, 1.125, 0)), False)
sketch18.addConstraint(Sketcher.Constraint("Coincident", 0, 2, 1, 1))
sketch18.addConstraint(Sketcher.Constraint("Coincident", 1, 2, 2, 2))
sketch18.addConstraint(Sketcher.Constraint("Coincident", 2, 1, 3, 1))
sketch18.addConstraint(Sketcher.Constraint("Coincident", 3, 2, 0, 1))
sketch18.addConstraint(Sketcher.Constraint("Vertical", 0))
sketch18.addConstraint(Sketcher.Constraint("Horizontal", 1))
sketch18.addConstraint(Sketcher.Constraint("Horizontal", 3))
sketch18.addConstraint(Sketcher.Constraint("PointOnObject", 0, 2, -2))
sketch18.addConstraint(Sketcher.Constraint("Vertical", 1, 2, 2, 1))
sketch18.addConstraint(Sketcher.Constraint("Radius", 2, 1.0))
sketch18.addConstraint(Sketcher.Constraint("DistanceY", 0, 2, 0, 1, 1.5))
sketch18.addConstraint(Sketcher.Constraint("DistanceX", -1, 1, 2, 3, 2.255))
sketch18.addConstraint(Sketcher.Constraint("DistanceY", -1, 1, 2, 3, 0.375))
pad13 = body2.newObject("PartDesign::Pad", "Pad012")
pad13.Profile = sketch18
pad13.Length = 1.5

doc.recompute()
